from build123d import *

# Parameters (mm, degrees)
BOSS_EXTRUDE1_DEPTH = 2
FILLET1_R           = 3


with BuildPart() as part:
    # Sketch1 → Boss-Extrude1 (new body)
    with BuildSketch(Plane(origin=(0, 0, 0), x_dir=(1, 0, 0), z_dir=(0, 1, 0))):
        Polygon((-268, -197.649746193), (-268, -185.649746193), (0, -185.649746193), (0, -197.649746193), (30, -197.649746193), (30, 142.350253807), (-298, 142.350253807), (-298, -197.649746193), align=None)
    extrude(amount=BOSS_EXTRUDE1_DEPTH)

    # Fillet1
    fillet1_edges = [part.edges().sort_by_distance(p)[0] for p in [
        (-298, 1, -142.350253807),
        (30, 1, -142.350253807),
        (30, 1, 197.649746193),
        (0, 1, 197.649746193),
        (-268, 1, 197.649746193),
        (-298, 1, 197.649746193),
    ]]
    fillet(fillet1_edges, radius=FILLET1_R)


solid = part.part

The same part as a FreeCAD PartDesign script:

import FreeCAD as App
import Part
import Sketcher

V = App.Vector


def edges_at(feature, points):
    """Names of the edges that pass closest to the given points."""
    edges = feature.Shape.Edges
    near = lambda p: min(range(len(edges)), key=lambda i: edges[i].distToShape(Part.Vertex(*p))[0])
    return sorted({f"Edge{near(p) + 1}" for p in points})

doc = App.newDocument("Part")
params = doc.addObject("Spreadsheet::Sheet", "Params")
for row, (alias, value) in enumerate([
    ("sketch1_width", "268 mm"),
    ("sketch1_width2", "30 mm"),
    ("sketch1_height", "12 mm"),
    ("sketch1_height2", "340 mm"),
    ("pad1_length", "2 mm"),
    ("fillet_radius", "3 mm"),
], start=1):
    params.set(f"A{row}", alias)
    params.set(f"B{row}", "=" + value)
    params.setAlias(f"B{row}", alias)

body = doc.addObject("PartDesign::Body", "Body")

sketch1 = body.newObject("Sketcher::SketchObject", "Sketch")
sketch1.AttachmentSupport = (doc.getObject("XZ_Plane"), [""])
sketch1.MapMode = "FlatFace"
sketch1.addGeometry(Part.LineSegment(V(-268, 197.649746, 0), V(-268, 185.649746, 0)), False)
sketch1.addGeometry(Part.LineSegment(V(-268, 185.649746, 0), V(0, 185.649746, 0)), False)
sketch1.addGeometry(Part.LineSegment(V(0, 185.649746, 0), V(0, 197.649746, 0)), False)
sketch1.addGeometry(Part.LineSegment(V(0, 197.649746, 0), V(30, 197.649746, 0)), False)
sketch1.addGeometry(Part.LineSegment(V(30, 197.649746, 0), V(30, -142.350254, 0)), False)
sketch1.addGeometry(Part.LineSegment(V(30, -142.350254, 0), V(-298, -142.350254, 0)), False)
sketch1.addGeometry(Part.LineSegment(V(-298, -142.350254, 0), V(-298, 197.649746, 0)), False)
sketch1.addGeometry(Part.LineSegment(V(-298, 197.649746, 0), V(-268, 197.649746, 0)), False)
sketch1.addConstraint(Sketcher.Constraint("Coincident", 0, 2, 1, 1))
sketch1.addConstraint(Sketcher.Constraint("Coincident", 1, 2, 2, 1))
sketch1.addConstraint(Sketcher.Constraint("Coincident", 2, 2, 3, 1))
sketch1.addConstraint(Sketcher.Constraint("Coincident", 3, 2, 4, 1))
sketch1.addConstraint(Sketcher.Constraint("Coincident", 4, 2, 5, 1))
sketch1.addConstraint(Sketcher.Constraint("Coincident", 5, 2, 6, 1))
sketch1.addConstraint(Sketcher.Constraint("Coincident", 6, 2, 7, 1))
sketch1.addConstraint(Sketcher.Constraint("Coincident", 7, 2, 0, 1))
sketch1.addConstraint(Sketcher.Constraint("Vertical", 0))
sketch1.addConstraint(Sketcher.Constraint("Horizontal", 1))
sketch1.addConstraint(Sketcher.Constraint("Vertical", 2))
sketch1.addConstraint(Sketcher.Constraint("Horizontal", 3))
sketch1.addConstraint(Sketcher.Constraint("Vertical", 4))
sketch1.addConstraint(Sketcher.Constraint("Horizontal", 5))
sketch1.addConstraint(Sketcher.Constraint("Vertical", 6))
sketch1.addConstraint(Sketcher.Constraint("Horizontal", 7))
sketch1.addConstraint(Sketcher.Constraint("PointOnObject", 1, 2, -2))
sketch1.addConstraint(Sketcher.Constraint("Horizontal", 3, 2, 6, 2))
sketch1.addConstraint(Sketcher.Constraint("Equal", 3, 7))
sketch1.addConstraint(Sketcher.Constraint("DistanceX", 1, 1, 1, 2, 268.0))
sketch1.addConstraint(Sketcher.Constraint("DistanceX", 3, 1, 3, 2, 30.0))
sketch1.addConstraint(Sketcher.Constraint("DistanceY", 0, 2, 0, 1, 12.0))
sketch1.addConstraint(Sketcher.Constraint("DistanceY", 4, 2, 4, 1, 340.0))
sketch1.addConstraint(Sketcher.Constraint("DistanceY", -1, 1, 0, 2, 185.649746))
sketch1.setExpression("Constraints[19]", "Params.sketch1_width")
sketch1.setExpression("Constraints[20]", "Params.sketch1_width2")
sketch1.setExpression("Constraints[21]", "Params.sketch1_height")
sketch1.setExpression("Constraints[22]", "Params.sketch1_height2")
pad1 = body.newObject("PartDesign::Pad", "Pad")
pad1.Profile = sketch1
pad1.setExpression("Length", "Params.pad1_length")
pad1.Reversed = True
doc.recompute()

fillet = body.newObject("PartDesign::Fillet", "Fillet")
fillet.Base = (pad1, edges_at(pad1, [
    (-298, 1, -142.35),
    (30, 1, -142.35),
    (30, 1, 197.65),
    (0, 1, 197.65),
    (-268, 1, 197.65),
    (-298, 1, 197.65),
]))
fillet.setExpression("Radius", "Params.fillet_radius")

doc.recompute()
